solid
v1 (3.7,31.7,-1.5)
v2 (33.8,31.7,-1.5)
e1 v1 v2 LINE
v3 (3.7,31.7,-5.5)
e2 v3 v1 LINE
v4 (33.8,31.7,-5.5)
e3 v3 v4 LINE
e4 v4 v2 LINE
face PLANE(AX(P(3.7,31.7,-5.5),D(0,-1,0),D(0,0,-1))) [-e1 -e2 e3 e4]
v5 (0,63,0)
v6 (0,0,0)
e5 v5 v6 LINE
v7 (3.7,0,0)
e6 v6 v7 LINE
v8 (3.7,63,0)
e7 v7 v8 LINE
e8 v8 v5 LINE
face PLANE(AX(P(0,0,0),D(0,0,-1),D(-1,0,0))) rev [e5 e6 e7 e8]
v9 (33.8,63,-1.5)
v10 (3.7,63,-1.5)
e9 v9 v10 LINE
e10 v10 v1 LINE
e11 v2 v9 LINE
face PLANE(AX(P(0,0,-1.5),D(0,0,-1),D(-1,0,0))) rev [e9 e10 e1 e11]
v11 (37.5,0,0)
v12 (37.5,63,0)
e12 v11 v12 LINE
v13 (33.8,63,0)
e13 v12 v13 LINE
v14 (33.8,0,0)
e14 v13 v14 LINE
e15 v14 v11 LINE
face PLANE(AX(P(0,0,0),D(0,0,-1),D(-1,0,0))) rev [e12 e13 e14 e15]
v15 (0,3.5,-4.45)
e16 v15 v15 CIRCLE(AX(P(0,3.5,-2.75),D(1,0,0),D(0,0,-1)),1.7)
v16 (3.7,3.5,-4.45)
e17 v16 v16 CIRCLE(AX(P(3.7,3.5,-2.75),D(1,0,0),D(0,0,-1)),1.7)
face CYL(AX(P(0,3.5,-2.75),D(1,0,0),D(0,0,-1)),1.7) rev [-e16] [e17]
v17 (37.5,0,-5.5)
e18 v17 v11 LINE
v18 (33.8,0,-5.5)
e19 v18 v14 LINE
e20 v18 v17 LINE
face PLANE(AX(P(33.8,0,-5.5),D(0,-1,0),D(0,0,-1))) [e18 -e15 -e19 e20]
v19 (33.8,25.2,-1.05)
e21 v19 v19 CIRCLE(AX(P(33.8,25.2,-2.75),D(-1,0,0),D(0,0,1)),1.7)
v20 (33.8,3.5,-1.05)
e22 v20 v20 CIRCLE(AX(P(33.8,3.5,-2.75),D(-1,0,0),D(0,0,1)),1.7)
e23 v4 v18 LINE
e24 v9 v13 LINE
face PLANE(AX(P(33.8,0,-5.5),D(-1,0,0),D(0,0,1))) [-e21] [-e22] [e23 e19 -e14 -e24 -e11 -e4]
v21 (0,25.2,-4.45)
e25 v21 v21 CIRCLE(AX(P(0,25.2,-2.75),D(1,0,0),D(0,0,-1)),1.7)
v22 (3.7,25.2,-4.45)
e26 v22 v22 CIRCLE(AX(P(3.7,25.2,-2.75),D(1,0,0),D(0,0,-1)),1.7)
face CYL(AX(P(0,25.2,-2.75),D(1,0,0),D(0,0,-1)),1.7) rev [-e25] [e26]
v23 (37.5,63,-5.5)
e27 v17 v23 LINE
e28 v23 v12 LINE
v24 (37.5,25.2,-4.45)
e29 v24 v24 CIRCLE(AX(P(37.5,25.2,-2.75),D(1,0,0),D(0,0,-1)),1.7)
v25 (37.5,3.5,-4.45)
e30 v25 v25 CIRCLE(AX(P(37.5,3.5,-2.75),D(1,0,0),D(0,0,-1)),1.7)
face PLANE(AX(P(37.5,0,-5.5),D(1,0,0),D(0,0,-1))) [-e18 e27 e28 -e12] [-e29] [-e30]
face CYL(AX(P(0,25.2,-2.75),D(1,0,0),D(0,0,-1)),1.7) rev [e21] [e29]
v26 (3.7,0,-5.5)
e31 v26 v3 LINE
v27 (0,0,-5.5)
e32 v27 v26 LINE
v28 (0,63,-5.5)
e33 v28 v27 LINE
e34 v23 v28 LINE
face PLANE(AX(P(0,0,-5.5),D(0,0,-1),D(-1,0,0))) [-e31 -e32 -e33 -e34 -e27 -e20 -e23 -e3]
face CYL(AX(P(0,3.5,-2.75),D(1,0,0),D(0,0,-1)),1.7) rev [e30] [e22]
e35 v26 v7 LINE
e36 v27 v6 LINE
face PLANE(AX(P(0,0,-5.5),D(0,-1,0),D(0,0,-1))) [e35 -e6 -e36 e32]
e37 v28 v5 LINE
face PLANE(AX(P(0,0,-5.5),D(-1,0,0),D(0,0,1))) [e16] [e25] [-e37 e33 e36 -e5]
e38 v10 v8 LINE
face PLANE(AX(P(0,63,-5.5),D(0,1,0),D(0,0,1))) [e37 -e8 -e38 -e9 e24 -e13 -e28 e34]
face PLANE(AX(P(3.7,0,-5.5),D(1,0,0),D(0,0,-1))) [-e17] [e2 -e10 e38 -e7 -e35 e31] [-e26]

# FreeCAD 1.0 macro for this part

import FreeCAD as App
import Part
import Sketcher

V = App.Vector
Q = App.Units.Quantity


def add_polygon(sketch, points):
    """Adds a closed chain of lines whose ends are joined by coincident constraints."""
    first, n = sketch.GeometryCount, len(points)
    for a, b in zip(points, points[1:] + points[:1]):
        sketch.addGeometry(Part.LineSegment(App.Vector(*a, 0), App.Vector(*b, 0)), False)
    for i in range(n):
        sketch.addConstraint(Sketcher.Constraint("Coincident", first + i, 2, first + (i + 1) % n, 1))

doc = App.newDocument("Part")
body = doc.addObject("PartDesign::Body", "Body")

sketch1 = body.newObject("Sketcher::SketchObject", "Sketch")
sketch1.AttachmentSupport = (doc.getObject("XY_Plane"), [""])
sketch1.MapMode = "FlatFace"
add_polygon(sketch1, [(33.8, 0), (37.5, 0), (37.5, 63), (0, 63), (0, 0), (3.7, 0), (3.7, 31.7), (33.8, 31.7)])
sketch1.addConstraint([
    Sketcher.Constraint("Horizontal", 0),
    Sketcher.Constraint("Vertical", 1),
    Sketcher.Constraint("Horizontal", 2),
    Sketcher.Constraint("Vertical", 3),
    Sketcher.Constraint("Horizontal", 4),
    Sketcher.Constraint("Vertical", 5),
    Sketcher.Constraint("Horizontal", 6),
    Sketcher.Constraint("Vertical", 7),
    Sketcher.Constraint("Coincident", 3, 2, -1, 1),
    Sketcher.Constraint("PointOnObject", 0, 2, -1),
    Sketcher.Constraint("Equal", 0, 4),
    Sketcher.Constraint("DistanceY", 1, 1, 1, 2, Q("63 mm")),
    Sketcher.Constraint("DistanceX", 0, 1, 0, 2, Q("3.7 mm")),
    Sketcher.Constraint("DistanceX", 2, 2, 2, 1, Q("37.5 mm")),
    Sketcher.Constraint("DistanceY", 5, 1, 5, 2, Q("31.7 mm")),
])
pad1 = body.newObject("PartDesign::Pad", "Pad")
pad1.Profile = sketch1
pad1.Length = 5.5
pad1.Reversed = True

sketch2 = body.newObject("Sketcher::SketchObject", "Sketch001")
sketch2.AttachmentSupport = (doc.getObject("XY_Plane"), [""])
sketch2.MapMode = "FlatFace"
add_polygon(sketch2, [(4, 63), (4, 32), (34, 32), (34, 63)])
sketch2.addConstraint([
    Sketcher.Constraint("Vertical", 0),
    Sketcher.Constraint("Horizontal", 1),
    Sketcher.Constraint("Vertical", 2),
    Sketcher.Constraint("Horizontal", 3),
    Sketcher.Constraint("DistanceX", 1, 1, 1, 2, Q("30.1 mm")),
    Sketcher.Constraint("DistanceY", 0, 2, 0, 1, Q("31.3 mm")),
    Sketcher.Constraint("DistanceY", -1, 1, 2, 2, Q("63 mm")),
    Sketcher.Constraint("DistanceX", -1, 1, 0, 2, Q("3.7 mm")),
])
pocket1 = body.newObject("PartDesign::Pocket", "Pocket")
pocket1.Profile = sketch2
pocket1.Length = 1.5

sketch3 = body.newObject("Sketcher::SketchObject", "Sketch002")
sketch3.AttachmentSupport = (doc.getObject("YZ_Plane"), [""])
sketch3.MapMode = "FlatFace"
sketch3.AttachmentOffset = App.Placement(V(0, 0, 37.5), App.Rotation())
sketch3.addGeometry([
    Part.Circle(V(3.5, -2.8, 0), V(0, 0, 1), 1.7),
    Part.Circle(V(25.2, -2.8, 0), V(0, 0, 1), 1.7),
], False)
sketch3.addConstraint([
    Sketcher.Constraint("Equal", 0, 1),
    Sketcher.Constraint("Horizontal", 0, 3, 1, 3),
    Sketcher.Constraint("Diameter", 0, Q("3.4 mm")),
    Sketcher.Constraint("DistanceX", -1, 1, 0, 3, Q("3.5 mm")),
    Sketcher.Constraint("DistanceX", -1, 1, 1, 3, Q("25.2 mm")),
    Sketcher.Constraint("DistanceY", 0, 3, -1, 1, Q("2.75 mm")),
])
pocket2 = body.newObject("PartDesign::Pocket", "Pocket001")
pocket2.Profile = sketch3
pocket2.Type = "ThroughAll"

doc.recompute()
